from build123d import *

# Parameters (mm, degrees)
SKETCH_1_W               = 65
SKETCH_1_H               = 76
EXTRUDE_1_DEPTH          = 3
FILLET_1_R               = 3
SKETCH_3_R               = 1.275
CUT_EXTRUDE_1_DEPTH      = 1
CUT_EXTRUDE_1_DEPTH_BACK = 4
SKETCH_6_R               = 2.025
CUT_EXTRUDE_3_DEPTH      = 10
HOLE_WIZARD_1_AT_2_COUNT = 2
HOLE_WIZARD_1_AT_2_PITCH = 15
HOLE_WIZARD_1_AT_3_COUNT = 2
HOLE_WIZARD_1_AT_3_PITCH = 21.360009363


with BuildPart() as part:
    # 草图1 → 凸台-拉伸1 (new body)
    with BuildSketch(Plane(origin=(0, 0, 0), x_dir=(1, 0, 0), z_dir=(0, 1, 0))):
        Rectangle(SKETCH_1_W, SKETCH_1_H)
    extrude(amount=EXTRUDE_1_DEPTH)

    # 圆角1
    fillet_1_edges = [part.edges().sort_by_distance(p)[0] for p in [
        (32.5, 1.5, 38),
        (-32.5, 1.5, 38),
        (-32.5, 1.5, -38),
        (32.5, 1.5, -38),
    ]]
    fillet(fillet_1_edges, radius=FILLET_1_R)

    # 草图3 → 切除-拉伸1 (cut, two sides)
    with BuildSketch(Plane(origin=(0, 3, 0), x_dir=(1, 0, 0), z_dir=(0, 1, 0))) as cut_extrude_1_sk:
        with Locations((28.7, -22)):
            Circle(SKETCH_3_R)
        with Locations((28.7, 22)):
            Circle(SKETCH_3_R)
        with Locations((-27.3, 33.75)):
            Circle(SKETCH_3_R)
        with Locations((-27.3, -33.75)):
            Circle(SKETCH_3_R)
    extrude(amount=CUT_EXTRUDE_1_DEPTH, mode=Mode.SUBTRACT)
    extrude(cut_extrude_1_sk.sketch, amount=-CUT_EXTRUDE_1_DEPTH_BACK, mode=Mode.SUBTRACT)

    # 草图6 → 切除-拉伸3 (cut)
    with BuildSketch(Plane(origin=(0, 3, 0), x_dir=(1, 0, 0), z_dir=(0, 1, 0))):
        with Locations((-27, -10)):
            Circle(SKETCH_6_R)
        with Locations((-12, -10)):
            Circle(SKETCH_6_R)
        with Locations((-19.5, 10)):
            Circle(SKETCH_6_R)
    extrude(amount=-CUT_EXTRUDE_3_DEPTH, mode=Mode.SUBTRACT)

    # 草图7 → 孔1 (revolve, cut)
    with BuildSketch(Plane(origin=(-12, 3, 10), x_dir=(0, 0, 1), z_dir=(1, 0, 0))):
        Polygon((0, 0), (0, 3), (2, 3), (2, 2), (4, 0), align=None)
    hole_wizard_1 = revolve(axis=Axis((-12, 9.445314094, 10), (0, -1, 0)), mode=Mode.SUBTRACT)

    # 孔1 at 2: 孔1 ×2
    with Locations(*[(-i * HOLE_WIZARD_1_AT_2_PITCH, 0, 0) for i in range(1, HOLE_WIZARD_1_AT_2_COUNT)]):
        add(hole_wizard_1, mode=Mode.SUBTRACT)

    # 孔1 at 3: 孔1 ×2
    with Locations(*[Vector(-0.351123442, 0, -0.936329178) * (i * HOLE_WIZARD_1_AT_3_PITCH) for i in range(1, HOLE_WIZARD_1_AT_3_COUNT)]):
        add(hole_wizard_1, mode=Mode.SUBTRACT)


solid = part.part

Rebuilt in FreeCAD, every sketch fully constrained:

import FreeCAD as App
import Part
import Sketcher

V = App.Vector


def edges_at(feature, points):
    """Names of the edges that pass closest to the given points."""
    edges = feature.Shape.Edges
    near = lambda p: min(range(len(edges)), key=lambda i: edges[i].distToShape(Part.Vertex(*p))[0])
    return sorted({f"Edge{near(p) + 1}" for p in points})


def add_polygon(sketch, points):
    """Adds a closed chain of lines whose ends are joined by coincident constraints."""
    first, n = sketch.GeometryCount, len(points)
    for a, b in zip(points, points[1:] + points[:1]):
        sketch.addGeometry(Part.LineSegment(App.Vector(*a, 0), App.Vector(*b, 0)), False)
    for i in range(n):
        sketch.addConstraint(Sketcher.Constraint("Coincident", first + i, 2, first + (i + 1) % n, 1))

doc = App.newDocument("Part")
body = doc.addObject("PartDesign::Body", "Body")

# Sketch on XZ plane
sketch1 = doc.addObject("Sketcher::SketchObject", "Sketch")
body.addObject(sketch1)
sketch1.AttachmentSupport = (doc.XZ_Plane, [""])
sketch1.MapMode = "FlatFace"
add_polygon(sketch1, [(-32, -38), (-32, 38), (32, 38), (32, -38)])  # lines 0-3
sketch1.addConstraint(Sketcher.Constraint("Vertical", 0))
sketch1.addConstraint(Sketcher.Constraint("Horizontal", 1))
sketch1.addConstraint(Sketcher.Constraint("Vertical", 2))
sketch1.addConstraint(Sketcher.Constraint("Horizontal", 3))
sketch1.addConstraint(Sketcher.Constraint("Symmetric", 0, 2, 2, 2, -1, 1))
sketch1.addConstraint(Sketcher.Constraint("DistanceX", 1, 1, 1, 2, 65.0))
sketch1.addConstraint(Sketcher.Constraint("DistanceY", 0, 1, 0, 2, 76.0))
pad1 = doc.addObject("PartDesign::Pad", "Pad")
body.addObject(pad1)
pad1.Profile = sketch1
pad1.Length = 3
pad1.Reversed = True
doc.recompute()

fillet = doc.addObject("PartDesign::Fillet", "Fillet")
body.addObject(fillet)
fillet.Base = (pad1, edges_at(pad1, [
    (32.5, 1.5, 38),
    (-32.5, 1.5, 38),
    (-32.5, 1.5, -38),
    (32.5, 1.5, -38),
]))
fillet.Radius = 3

# Sketch on XZ plane
sketch2 = doc.addObject("Sketcher::SketchObject", "Sketch001")
body.addObject(sketch2)
sketch2.AttachmentSupport = (doc.XZ_Plane, [""])
sketch2.MapMode = "FlatFace"
sketch2.AttachmentOffset = App.Placement(V(0, 0, -3), App.Rotation())
sketch2.addGeometry(Part.Circle(V(28.7, 22, 0), V(0, 0, 1), 1.3), False)
sketch2.addGeometry(Part.Circle(V(28.7, -22, 0), V(0, 0, 1), 1.3), False)
sketch2.addGeometry(Part.Circle(V(-27.3, -33.8, 0), V(0, 0, 1), 1.3), False)
sketch2.addGeometry(Part.Circle(V(-27.3, 33.8, 0), V(0, 0, 1), 1.3), False)
sketch2.addConstraint(Sketcher.Constraint("Equal", 0, 1))
sketch2.addConstraint(Sketcher.Constraint("Equal", 1, 2))
sketch2.addConstraint(Sketcher.Constraint("Equal", 2, 3))
sketch2.addConstraint(Sketcher.Constraint("Symmetric", 0, 3, 1, 3, -1))
sketch2.addConstraint(Sketcher.Constraint("Symmetric", 2, 3, 3, 3, -1))
sketch2.addConstraint(Sketcher.Constraint("Diameter", 0, 2.55))
sketch2.addConstraint(Sketcher.Constraint("DistanceY", -1, 1, 0, 3, 22.0))
sketch2.addConstraint(Sketcher.Constraint("DistanceX", 2, 3, 1, 3, 56.0))
sketch2.addConstraint(Sketcher.Constraint("DistanceX", -1, 1, 0, 3, 28.7))
sketch2.addConstraint(Sketcher.Constraint("DistanceY", 2, 3, 3, 3, 67.5))
pocket1 = doc.addObject("PartDesign::Pocket", "Pocket")
body.addObject(pocket1)
pocket1.Profile = sketch2
pocket1.Type = "ThroughAll"
pocket1.Midplane = True

# Sketch on XZ plane
sketch3 = doc.addObject("Sketcher::SketchObject", "Sketch002")
body.addObject(sketch3)
sketch3.AttachmentSupport = (doc.XZ_Plane, [""])
sketch3.MapMode = "FlatFace"
sketch3.AttachmentOffset = App.Placement(V(0, 0, -3), App.Rotation())
sketch3.addGeometry(Part.Circle(V(-27, 10, 0), V(0, 0, 1), 2), False)
sketch3.addGeometry(Part.Circle(V(-12, 10, 0), V(0, 0, 1), 2), False)
sketch3.addGeometry(Part.Circle(V(-19.5, -10, 0), V(0, 0, 1), 2), False)
sketch3.addConstraint(Sketcher.Constraint("Equal", 0, 1))
sketch3.addConstraint(Sketcher.Constraint("Equal", 1, 2))
sketch3.addConstraint(Sketcher.Constraint("Horizontal", 0, 3, 1, 3))
sketch3.addConstraint(Sketcher.Constraint("Diameter", 0, 4.05))
sketch3.addConstraint(Sketcher.Constraint("DistanceX", 0, 3, -1, 1, 27.0))
sketch3.addConstraint(Sketcher.Constraint("DistanceY", -1, 1, 0, 3, 10.0))
sketch3.addConstraint(Sketcher.Constraint("DistanceX", 1, 3, -1, 1, 12.0))
sketch3.addConstraint(Sketcher.Constraint("DistanceY", 2, 3, -1, 1, 10.0))
sketch3.addConstraint(Sketcher.Constraint("DistanceX", 2, 3, -1, 1, 19.5))
pocket2 = doc.addObject("PartDesign::Pocket", "Pocket001")
body.addObject(pocket2)
pocket2.Profile = sketch3
pocket2.Length = 10
pocket2.Reversed = True

# Sketch on YZ plane
sketch4 = doc.addObject("Sketcher::SketchObject", "Sketch003")
body.addObject(sketch4)
sketch4.AttachmentSupport = (doc.YZ_Plane, [""])
sketch4.MapMode = "FlatFace"
sketch4.AttachmentOffset = App.Placement(V(0, 0, -12), App.Rotation())
add_polygon(sketch4, [(0, 10), (3, 10), (3, 14), (1, 12), (0, 12)])  # lines 0-4
sketch4.addGeometry(Part.LineSegment(V(3, 10, 0), V(0, 10, 0)), True)  # axis
sketch4.addConstraint(Sketcher.Constraint("Horizontal", 0))
sketch4.addConstraint(Sketcher.Constraint("Vertical", 1))
sketch4.addConstraint(Sketcher.Constraint("Horizontal", 3))
sketch4.addConstraint(Sketcher.Constraint("Vertical", 4))
sketch4.addConstraint(Sketcher.Constraint("Horizontal", 5))
sketch4.addConstraint(Sketcher.Constraint("Coincident", 5, 1, 0, 2))
sketch4.addConstraint(Sketcher.Constraint("PointOnObject", 3, 2, -2))
sketch4.addConstraint(Sketcher.Constraint("PointOnObject", 5, 2, -2))
sketch4.addConstraint(Sketcher.Constraint("DistanceX", 0, 1, 0, 2, 3.0))
sketch4.addConstraint(Sketcher.Constraint("DistanceX", 3, 2, 3, 1, 1.0))
sketch4.addConstraint(Sketcher.Constraint("DistanceY", 1, 1, 1, 2, 4.0))
sketch4.addConstraint(Sketcher.Constraint("DistanceY", 4, 2, 4, 1, 2.0))
sketch4.addConstraint(Sketcher.Constraint("DistanceY", -1, 1, 0, 2, 10.0))
groove = doc.addObject("PartDesign::Groove", "Groove")
body.addObject(groove)
groove.Profile = sketch4
groove.ReferenceAxis = (sketch4, ["Axis0"])
groove.Angle = 360
doc.recompute()

linearpattern = doc.addObject("PartDesign::LinearPattern", "LinearPattern")
body.addObject(linearpattern)
linearpattern.Originals = [groove]
linearpattern.Direction = (doc.X_Axis, [""])
linearpattern.Mode = "offset"
linearpattern.Offset = 15
linearpattern.Occurrences = 2
linearpattern.Reversed = True
body.Tip = linearpattern
doc.recompute()

datumline = doc.addObject("PartDesign::Line", "DatumLine")
body.addObject(datumline)
datumline.Placement = App.Placement(V(0, 0, 0), App.Rotation(V(0, 0, 1), V(-0.351123442, 0, -0.936329177)))
linearpattern2 = doc.addObject("PartDesign::LinearPattern", "LinearPattern001")
body.addObject(linearpattern2)
linearpattern2.Originals = [groove]
linearpattern2.Direction = (datumline, [""])
linearpattern2.Mode = "offset"
linearpattern2.Offset = 21.360009
linearpattern2.Occurrences = 2
body.Tip = linearpattern2

doc.recompute()
